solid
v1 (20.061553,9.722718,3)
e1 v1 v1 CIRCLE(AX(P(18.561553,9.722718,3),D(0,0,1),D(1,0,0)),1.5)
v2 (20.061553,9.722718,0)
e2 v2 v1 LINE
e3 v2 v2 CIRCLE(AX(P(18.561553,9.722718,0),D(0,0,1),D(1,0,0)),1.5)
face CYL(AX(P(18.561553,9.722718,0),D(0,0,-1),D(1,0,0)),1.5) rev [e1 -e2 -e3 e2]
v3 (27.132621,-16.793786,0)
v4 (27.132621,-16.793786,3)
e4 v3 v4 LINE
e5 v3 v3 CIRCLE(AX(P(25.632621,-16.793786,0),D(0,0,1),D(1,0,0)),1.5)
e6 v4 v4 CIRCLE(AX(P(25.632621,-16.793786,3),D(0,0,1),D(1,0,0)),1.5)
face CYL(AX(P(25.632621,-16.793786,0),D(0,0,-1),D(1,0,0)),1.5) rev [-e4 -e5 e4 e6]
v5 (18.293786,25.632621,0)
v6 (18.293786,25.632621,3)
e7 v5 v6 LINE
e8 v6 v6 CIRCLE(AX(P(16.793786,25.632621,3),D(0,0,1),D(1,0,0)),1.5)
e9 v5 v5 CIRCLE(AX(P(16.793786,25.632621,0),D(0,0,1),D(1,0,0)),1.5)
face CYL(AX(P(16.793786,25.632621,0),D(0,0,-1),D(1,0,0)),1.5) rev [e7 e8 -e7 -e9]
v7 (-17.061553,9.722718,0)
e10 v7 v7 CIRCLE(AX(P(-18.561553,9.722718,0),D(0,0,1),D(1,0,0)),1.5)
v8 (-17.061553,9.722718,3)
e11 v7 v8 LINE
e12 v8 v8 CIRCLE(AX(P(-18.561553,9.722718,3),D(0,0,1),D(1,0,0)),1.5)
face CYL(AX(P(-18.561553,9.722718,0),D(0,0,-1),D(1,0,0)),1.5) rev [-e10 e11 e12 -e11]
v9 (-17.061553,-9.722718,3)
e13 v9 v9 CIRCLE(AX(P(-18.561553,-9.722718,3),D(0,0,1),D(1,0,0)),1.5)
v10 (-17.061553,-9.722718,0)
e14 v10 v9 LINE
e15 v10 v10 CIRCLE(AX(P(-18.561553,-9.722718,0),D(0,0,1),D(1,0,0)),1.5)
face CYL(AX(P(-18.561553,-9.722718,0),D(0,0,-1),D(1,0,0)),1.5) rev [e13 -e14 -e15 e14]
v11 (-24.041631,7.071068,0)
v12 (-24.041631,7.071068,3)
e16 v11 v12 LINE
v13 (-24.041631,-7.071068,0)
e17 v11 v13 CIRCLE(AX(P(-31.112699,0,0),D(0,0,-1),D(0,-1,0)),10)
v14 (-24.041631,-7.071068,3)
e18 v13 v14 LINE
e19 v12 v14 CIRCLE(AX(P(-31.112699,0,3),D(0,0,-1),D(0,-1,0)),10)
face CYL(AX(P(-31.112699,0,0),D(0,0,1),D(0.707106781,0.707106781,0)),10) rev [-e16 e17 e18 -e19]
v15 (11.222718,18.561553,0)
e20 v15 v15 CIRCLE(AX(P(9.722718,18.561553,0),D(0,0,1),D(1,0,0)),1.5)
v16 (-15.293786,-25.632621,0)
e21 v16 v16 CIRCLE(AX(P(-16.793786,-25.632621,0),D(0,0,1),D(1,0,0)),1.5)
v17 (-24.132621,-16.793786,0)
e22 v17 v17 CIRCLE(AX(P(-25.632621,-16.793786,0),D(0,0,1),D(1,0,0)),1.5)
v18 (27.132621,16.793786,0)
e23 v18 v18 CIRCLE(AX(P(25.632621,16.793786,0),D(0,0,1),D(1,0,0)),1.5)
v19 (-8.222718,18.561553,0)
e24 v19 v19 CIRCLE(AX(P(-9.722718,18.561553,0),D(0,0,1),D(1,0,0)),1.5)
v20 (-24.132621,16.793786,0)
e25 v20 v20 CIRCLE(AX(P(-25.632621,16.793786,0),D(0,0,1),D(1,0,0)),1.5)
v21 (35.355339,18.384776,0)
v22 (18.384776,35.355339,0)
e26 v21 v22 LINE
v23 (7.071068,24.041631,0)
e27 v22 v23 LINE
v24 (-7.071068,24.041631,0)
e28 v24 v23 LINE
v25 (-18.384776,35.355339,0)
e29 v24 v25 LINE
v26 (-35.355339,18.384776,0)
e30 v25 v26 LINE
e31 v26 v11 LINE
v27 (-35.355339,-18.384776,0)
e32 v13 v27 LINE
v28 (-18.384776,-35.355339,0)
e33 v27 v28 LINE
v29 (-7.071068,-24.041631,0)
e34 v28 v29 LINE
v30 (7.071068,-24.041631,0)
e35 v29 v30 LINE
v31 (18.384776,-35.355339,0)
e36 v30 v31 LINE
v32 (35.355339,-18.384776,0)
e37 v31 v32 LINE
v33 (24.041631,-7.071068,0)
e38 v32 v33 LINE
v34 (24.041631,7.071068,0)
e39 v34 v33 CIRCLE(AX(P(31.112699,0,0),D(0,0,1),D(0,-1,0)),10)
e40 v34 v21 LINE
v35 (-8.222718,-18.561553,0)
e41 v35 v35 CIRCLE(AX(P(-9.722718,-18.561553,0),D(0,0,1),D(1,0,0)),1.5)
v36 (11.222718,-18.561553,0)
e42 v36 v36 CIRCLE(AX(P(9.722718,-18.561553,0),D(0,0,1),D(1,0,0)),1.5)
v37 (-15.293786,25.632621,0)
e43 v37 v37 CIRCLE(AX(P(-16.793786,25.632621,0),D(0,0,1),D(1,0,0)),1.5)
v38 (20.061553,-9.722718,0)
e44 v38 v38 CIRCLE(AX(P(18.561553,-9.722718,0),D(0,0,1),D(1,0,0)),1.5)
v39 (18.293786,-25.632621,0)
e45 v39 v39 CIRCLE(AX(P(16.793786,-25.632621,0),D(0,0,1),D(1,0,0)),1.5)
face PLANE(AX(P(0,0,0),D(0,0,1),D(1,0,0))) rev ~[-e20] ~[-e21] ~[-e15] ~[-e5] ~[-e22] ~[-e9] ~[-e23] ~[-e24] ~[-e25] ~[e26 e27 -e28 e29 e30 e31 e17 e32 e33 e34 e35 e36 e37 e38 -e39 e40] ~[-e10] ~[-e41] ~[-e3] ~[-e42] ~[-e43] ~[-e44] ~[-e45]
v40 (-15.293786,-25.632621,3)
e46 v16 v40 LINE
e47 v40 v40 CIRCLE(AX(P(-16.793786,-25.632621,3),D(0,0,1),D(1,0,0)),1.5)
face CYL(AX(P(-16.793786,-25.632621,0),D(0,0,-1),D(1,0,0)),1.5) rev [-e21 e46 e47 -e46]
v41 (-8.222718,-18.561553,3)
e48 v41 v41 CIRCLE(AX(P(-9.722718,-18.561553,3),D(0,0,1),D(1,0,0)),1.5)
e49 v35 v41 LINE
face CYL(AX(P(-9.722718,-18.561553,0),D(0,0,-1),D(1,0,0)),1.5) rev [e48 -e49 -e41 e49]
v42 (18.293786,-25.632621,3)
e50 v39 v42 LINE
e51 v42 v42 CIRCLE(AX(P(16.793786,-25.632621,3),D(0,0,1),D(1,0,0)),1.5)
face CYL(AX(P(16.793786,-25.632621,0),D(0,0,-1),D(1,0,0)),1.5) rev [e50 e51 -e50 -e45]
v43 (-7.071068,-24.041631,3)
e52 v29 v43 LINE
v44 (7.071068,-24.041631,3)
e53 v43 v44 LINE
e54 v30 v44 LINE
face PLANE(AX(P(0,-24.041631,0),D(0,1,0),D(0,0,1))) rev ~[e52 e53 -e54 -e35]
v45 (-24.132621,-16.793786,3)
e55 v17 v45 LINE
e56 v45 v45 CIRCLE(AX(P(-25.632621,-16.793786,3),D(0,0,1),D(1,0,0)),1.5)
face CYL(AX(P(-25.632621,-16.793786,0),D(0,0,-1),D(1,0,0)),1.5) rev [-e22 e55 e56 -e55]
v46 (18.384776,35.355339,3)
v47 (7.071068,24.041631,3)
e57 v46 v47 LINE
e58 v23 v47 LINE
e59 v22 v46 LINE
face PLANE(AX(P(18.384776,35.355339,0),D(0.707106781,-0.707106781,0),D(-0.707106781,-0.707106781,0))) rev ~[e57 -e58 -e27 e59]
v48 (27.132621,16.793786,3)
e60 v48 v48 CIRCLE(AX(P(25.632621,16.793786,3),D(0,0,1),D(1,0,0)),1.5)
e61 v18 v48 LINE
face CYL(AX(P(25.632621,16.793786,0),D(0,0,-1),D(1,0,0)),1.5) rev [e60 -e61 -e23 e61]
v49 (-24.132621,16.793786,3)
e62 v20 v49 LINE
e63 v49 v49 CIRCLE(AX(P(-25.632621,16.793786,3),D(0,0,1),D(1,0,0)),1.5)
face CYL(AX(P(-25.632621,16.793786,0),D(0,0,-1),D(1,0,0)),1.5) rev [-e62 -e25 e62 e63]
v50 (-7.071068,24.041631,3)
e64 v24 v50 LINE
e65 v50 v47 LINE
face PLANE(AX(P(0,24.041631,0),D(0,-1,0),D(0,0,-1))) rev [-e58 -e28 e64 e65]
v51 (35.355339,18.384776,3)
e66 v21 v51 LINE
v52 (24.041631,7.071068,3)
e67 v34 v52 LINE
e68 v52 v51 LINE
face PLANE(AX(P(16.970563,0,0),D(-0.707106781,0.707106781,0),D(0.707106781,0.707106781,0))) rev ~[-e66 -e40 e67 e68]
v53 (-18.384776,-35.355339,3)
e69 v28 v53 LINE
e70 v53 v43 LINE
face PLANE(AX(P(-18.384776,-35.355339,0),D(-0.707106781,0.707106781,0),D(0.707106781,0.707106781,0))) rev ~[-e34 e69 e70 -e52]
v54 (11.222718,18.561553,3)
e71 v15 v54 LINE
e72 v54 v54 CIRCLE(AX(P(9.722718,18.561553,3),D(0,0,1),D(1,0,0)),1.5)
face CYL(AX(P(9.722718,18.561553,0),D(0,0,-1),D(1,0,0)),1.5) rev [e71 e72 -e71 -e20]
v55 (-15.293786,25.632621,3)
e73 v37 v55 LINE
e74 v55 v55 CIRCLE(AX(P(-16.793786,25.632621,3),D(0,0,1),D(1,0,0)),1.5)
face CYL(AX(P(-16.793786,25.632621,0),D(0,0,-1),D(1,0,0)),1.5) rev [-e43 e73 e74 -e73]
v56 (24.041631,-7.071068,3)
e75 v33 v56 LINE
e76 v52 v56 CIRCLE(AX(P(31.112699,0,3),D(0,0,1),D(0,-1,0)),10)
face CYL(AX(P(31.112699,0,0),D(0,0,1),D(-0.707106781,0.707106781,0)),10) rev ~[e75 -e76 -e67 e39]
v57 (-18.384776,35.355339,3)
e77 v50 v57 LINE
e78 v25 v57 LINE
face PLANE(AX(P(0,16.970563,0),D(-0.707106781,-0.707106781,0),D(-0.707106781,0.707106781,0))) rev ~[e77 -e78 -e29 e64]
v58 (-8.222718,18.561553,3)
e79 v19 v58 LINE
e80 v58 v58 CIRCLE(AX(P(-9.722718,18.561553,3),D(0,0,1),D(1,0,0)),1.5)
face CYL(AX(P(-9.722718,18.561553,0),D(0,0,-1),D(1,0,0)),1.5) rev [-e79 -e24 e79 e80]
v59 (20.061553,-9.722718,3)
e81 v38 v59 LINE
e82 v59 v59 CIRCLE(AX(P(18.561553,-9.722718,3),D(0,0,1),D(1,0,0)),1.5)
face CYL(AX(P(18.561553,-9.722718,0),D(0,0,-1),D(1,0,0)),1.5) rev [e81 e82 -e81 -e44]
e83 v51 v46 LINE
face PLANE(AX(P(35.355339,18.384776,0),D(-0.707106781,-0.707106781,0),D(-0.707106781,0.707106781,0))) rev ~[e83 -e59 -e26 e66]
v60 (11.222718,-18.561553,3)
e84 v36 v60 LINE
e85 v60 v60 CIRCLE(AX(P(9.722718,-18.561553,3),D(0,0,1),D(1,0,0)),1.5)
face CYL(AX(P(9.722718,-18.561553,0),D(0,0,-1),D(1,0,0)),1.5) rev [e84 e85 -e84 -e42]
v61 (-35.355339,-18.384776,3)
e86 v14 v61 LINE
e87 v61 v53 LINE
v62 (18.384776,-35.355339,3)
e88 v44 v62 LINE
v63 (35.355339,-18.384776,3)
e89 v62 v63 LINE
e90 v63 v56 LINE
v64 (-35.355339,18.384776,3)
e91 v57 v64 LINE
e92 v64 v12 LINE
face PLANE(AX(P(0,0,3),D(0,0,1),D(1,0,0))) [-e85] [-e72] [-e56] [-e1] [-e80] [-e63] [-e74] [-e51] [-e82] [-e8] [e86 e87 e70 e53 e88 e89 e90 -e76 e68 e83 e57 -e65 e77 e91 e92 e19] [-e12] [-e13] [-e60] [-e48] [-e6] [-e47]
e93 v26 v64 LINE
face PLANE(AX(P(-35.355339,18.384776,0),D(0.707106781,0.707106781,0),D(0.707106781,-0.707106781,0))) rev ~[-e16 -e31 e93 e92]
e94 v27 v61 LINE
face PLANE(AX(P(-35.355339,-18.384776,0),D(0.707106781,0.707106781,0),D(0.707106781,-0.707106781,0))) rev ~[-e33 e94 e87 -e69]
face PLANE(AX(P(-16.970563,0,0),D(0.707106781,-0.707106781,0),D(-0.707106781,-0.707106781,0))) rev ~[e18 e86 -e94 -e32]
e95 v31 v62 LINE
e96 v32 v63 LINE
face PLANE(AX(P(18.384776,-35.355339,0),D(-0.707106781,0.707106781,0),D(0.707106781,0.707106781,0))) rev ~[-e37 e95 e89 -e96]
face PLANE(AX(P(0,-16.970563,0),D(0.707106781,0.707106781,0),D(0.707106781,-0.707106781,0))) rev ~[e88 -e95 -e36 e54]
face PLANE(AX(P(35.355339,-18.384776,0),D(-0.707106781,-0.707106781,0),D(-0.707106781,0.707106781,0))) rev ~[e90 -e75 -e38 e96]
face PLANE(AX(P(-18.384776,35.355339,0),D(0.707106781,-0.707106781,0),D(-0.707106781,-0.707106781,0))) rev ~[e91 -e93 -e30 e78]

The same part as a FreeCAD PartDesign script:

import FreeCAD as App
import Part
import Sketcher

V = App.Vector
Q = App.Units.Quantity


def edges_at(feature, points):
    """Names of the edges that pass closest to the given points."""
    edges = feature.Shape.Edges
    near = lambda p: min(range(len(edges)), key=lambda i: edges[i].distToShape(Part.Vertex(*p))[0])
    return sorted({f"Edge{near(p) + 1}" for p in points})

doc = App.newDocument("Part")
body = doc.addObject("PartDesign::Body", "Body")

sketch1 = body.newObject("Sketcher::SketchObject", "Sketch")
sketch1.AttachmentSupport = (doc.getObject("XY_Plane"), [""])
sketch1.MapMode = "FlatFace"
sketch1.addGeometry(Part.LineSegment(V(-35.4, 18.4, 0), V(-17, 0, 0)), False)
sketch1.addGeometry(Part.LineSegment(V(-17, 0, 0), V(-35.4, -18.4, 0)), False)
sketch1.addGeometry(Part.LineSegment(V(-35.4, -18.4, 0), V(-18.4, -35.4, 0)), False)
sketch1.addGeometry(Part.LineSegment(V(-18.4, -35.4, 0), V(0, -17, 0)), False)
sketch1.addGeometry(Part.LineSegment(V(0, -17, 0), V(18.4, -35.4, 0)), False)
sketch1.addGeometry(Part.LineSegment(V(18.4, -35.4, 0), V(35.4, -18.4, 0)), False)
sketch1.addGeometry(Part.LineSegment(V(35.4, -18.4, 0), V(17, 0, 0)), False)
sketch1.addGeometry(Part.LineSegment(V(17, 0, 0), V(35.4, 18.4, 0)), False)
sketch1.addGeometry(Part.LineSegment(V(35.4, 18.4, 0), V(18.4, 35.4, 0)), False)
sketch1.addGeometry(Part.LineSegment(V(18.4, 35.4, 0), V(0, 17, 0)), False)
sketch1.addGeometry(Part.LineSegment(V(0, 17, 0), V(-18.4, 35.4, 0)), False)
sketch1.addGeometry(Part.LineSegment(V(-18.4, 35.4, 0), V(-35.4, 18.4, 0)), False)
sketch1.addGeometry(Part.Circle(V(-16.8, -25.6, 0), V(0, 0, 1), 1.5), False)
sketch1.addGeometry(Part.Circle(V(-25.6, -16.8, 0), V(0, 0, 1), 1.5), False)
sketch1.addGeometry(Part.Circle(V(-9.7, -18.6, 0), V(0, 0, 1), 1.5), False)
sketch1.addGeometry(Part.Circle(V(-18.6, -9.7, 0), V(0, 0, 1), 1.5), False)
sketch1.addGeometry(Part.Circle(V(9.7, -18.6, 0), V(0, 0, 1), 1.5), False)
sketch1.addGeometry(Part.Circle(V(16.8, -25.6, 0), V(0, 0, 1), 1.5), False)
sketch1.addGeometry(Part.Circle(V(25.6, -16.8, 0), V(0, 0, 1), 1.5), False)
sketch1.addGeometry(Part.Circle(V(18.6, -9.7, 0), V(0, 0, 1), 1.5), False)
sketch1.addGeometry(Part.Circle(V(-18.6, 9.7, 0), V(0, 0, 1), 1.5), False)
sketch1.addGeometry(Part.Circle(V(-25.6, 16.8, 0), V(0, 0, 1), 1.5), False)
sketch1.addGeometry(Part.Circle(V(-16.8, 25.6, 0), V(0, 0, 1), 1.5), False)
sketch1.addGeometry(Part.Circle(V(-9.7, 18.6, 0), V(0, 0, 1), 1.5), False)
sketch1.addGeometry(Part.Circle(V(18.6, 9.7, 0), V(0, 0, 1), 1.5), False)
sketch1.addGeometry(Part.Circle(V(9.7, 18.6, 0), V(0, 0, 1), 1.5), False)
sketch1.addGeometry(Part.Circle(V(25.6, 16.8, 0), V(0, 0, 1), 1.5), False)
sketch1.addGeometry(Part.Circle(V(16.8, 25.6, 0), V(0, 0, 1), 1.5), False)
sketch1.addConstraint(Sketcher.Constraint("Coincident", 0, 2, 1, 1))
sketch1.addConstraint(Sketcher.Constraint("Coincident", 1, 2, 2, 1))
sketch1.addConstraint(Sketcher.Constraint("Coincident", 2, 2, 3, 1))
sketch1.addConstraint(Sketcher.Constraint("Coincident", 3, 2, 4, 1))
sketch1.addConstraint(Sketcher.Constraint("Coincident", 4, 2, 5, 1))
sketch1.addConstraint(Sketcher.Constraint("Coincident", 5, 2, 6, 1))
sketch1.addConstraint(Sketcher.Constraint("Coincident", 6, 2, 7, 1))
sketch1.addConstraint(Sketcher.Constraint("Coincident", 7, 2, 8, 1))
sketch1.addConstraint(Sketcher.Constraint("Coincident", 8, 2, 9, 1))
sketch1.addConstraint(Sketcher.Constraint("Coincident", 9, 2, 10, 1))
sketch1.addConstraint(Sketcher.Constraint("Coincident", 10, 2, 11, 1))
sketch1.addConstraint(Sketcher.Constraint("Coincident", 11, 2, 0, 1))
sketch1.addConstraint(Sketcher.Constraint("Equal", 12, 13))
sketch1.addConstraint(Sketcher.Constraint("Equal", 13, 14))
sketch1.addConstraint(Sketcher.Constraint("Equal", 14, 15))
sketch1.addConstraint(Sketcher.Constraint("Equal", 15, 16))
sketch1.addConstraint(Sketcher.Constraint("Equal", 16, 17))
sketch1.addConstraint(Sketcher.Constraint("Equal", 17, 18))
sketch1.addConstraint(Sketcher.Constraint("Equal", 18, 19))
sketch1.addConstraint(Sketcher.Constraint("Equal", 19, 20))
sketch1.addConstraint(Sketcher.Constraint("Equal", 20, 21))
sketch1.addConstraint(Sketcher.Constraint("Equal", 21, 22))
sketch1.addConstraint(Sketcher.Constraint("Equal", 22, 23))
sketch1.addConstraint(Sketcher.Constraint("Equal", 23, 24))
sketch1.addConstraint(Sketcher.Constraint("Equal", 24, 25))
sketch1.addConstraint(Sketcher.Constraint("Equal", 25, 26))
sketch1.addConstraint(Sketcher.Constraint("Equal", 26, 27))
sketch1.addConstraint(Sketcher.Constraint("Symmetric", 19, 3, 20, 3, -1, 1))
sketch1.addConstraint(Sketcher.Constraint("Symmetric", 18, 3, 21, 3, -1, 1))
sketch1.addConstraint(Sketcher.Constraint("Symmetric", 17, 3, 22, 3, -1, 1))
sketch1.addConstraint(Sketcher.Constraint("Symmetric", 16, 3, 23, 3, -1, 1))
sketch1.addConstraint(Sketcher.Constraint("Symmetric", 15, 3, 24, 3, -1, 1))
sketch1.addConstraint(Sketcher.Constraint("Symmetric", 14, 3, 25, 3, -1, 1))
sketch1.addConstraint(Sketcher.Constraint("Symmetric", 13, 3, 26, 3, -1, 1))
sketch1.addConstraint(Sketcher.Constraint("Symmetric", 12, 3, 27, 3, -1, 1))
sketch1.addConstraint(Sketcher.Constraint("Symmetric", 0, 2, 6, 2, -1, 1))
sketch1.addConstraint(Sketcher.Constraint("Symmetric", 1, 2, 7, 2, -1, 1))
sketch1.addConstraint(Sketcher.Constraint("Symmetric", 2, 2, 8, 2, -1, 1))
sketch1.addConstraint(Sketcher.Constraint("Symmetric", 3, 2, 9, 2, -1, 1))
sketch1.addConstraint(Sketcher.Constraint("Symmetric", 4, 2, 10, 2, -1, 1))
sketch1.addConstraint(Sketcher.Constraint("Symmetric", 5, 2, 11, 2, -1, 1))
sketch1.addConstraint(Sketcher.Constraint("Symmetric", 14, 3, 16, 3, -2))
sketch1.addConstraint(Sketcher.Constraint("Symmetric", 12, 3, 17, 3, -2))
sketch1.addConstraint(Sketcher.Constraint("Symmetric", 13, 3, 18, 3, -2))
sketch1.addConstraint(Sketcher.Constraint("Symmetric", 15, 3, 19, 3, -2))
sketch1.addConstraint(Sketcher.Constraint("Symmetric", 2, 2, 4, 2, -2))
sketch1.addConstraint(Sketcher.Constraint("Symmetric", 1, 2, 5, 2, -2))
sketch1.addConstraint(Sketcher.Constraint("PointOnObject", 0, 2, -1))
sketch1.addConstraint(Sketcher.Constraint("PointOnObject", 3, 2, -2))
sketch1.addConstraint(Sketcher.Constraint("Perpendicular", 0, 1))
sketch1.addConstraint(Sketcher.Constraint("Perpendicular", 1, 2))
sketch1.addConstraint(Sketcher.Constraint("Perpendicular", 2, 3))
sketch1.addConstraint(Sketcher.Constraint("Equal", 1, 3))
sketch1.addConstraint(Sketcher.Constraint("Diameter", 12, Q("3 mm")))
sketch1.addConstraint(Sketcher.Constraint("Distance", 0, Q("26 mm")))
sketch1.addConstraint(Sketcher.Constraint("Distance", 2, Q("24 mm")))
sketch1.addConstraint(Sketcher.Constraint("DistanceY", 12, 3, -1, 1, Q("25.632621 mm")))
sketch1.addConstraint(Sketcher.Constraint("DistanceX", 13, 3, -1, 1, Q("25.632621 mm")))
sketch1.addConstraint(Sketcher.Constraint("DistanceX", 12, 3, 14, 3, Q("7.071068 mm")))
sketch1.addConstraint(Sketcher.Constraint("DistanceY", 12, 3, 14, 3, Q("7.071068 mm")))
sketch1.addConstraint(Sketcher.Constraint("DistanceX", 13, 3, 15, 3, Q("7.071068 mm")))
sketch1.addConstraint(Sketcher.Constraint("DistanceY", 13, 3, 15, 3, Q("7.071068 mm")))
sketch1.addConstraint(Sketcher.Constraint("DistanceX", 15, 3, 16, 3, Q("28.284271 mm")))
sketch1.addConstraint(Sketcher.Constraint("DistanceY", 14, 3, 20, 3, Q("28.284271 mm")))
pad1 = body.newObject("PartDesign::Pad", "Pad")
pad1.Profile = sketch1
pad1.Length = 3
doc.recompute()

fillet = body.newObject("PartDesign::Fillet", "Fillet")
fillet.Base = (pad1, edges_at(pad1, [(-16.971, 0, 1.5), (16.971, 0, 1.5)]))
fillet.Radius = 10
doc.recompute()

chamfer = body.newObject("PartDesign::Chamfer", "Chamfer")
chamfer.Base = (fillet, edges_at(fillet, [(0, -16.971, 1.5), (0, 16.971, 1.5)]))
chamfer.Size = 10

doc.recompute()
